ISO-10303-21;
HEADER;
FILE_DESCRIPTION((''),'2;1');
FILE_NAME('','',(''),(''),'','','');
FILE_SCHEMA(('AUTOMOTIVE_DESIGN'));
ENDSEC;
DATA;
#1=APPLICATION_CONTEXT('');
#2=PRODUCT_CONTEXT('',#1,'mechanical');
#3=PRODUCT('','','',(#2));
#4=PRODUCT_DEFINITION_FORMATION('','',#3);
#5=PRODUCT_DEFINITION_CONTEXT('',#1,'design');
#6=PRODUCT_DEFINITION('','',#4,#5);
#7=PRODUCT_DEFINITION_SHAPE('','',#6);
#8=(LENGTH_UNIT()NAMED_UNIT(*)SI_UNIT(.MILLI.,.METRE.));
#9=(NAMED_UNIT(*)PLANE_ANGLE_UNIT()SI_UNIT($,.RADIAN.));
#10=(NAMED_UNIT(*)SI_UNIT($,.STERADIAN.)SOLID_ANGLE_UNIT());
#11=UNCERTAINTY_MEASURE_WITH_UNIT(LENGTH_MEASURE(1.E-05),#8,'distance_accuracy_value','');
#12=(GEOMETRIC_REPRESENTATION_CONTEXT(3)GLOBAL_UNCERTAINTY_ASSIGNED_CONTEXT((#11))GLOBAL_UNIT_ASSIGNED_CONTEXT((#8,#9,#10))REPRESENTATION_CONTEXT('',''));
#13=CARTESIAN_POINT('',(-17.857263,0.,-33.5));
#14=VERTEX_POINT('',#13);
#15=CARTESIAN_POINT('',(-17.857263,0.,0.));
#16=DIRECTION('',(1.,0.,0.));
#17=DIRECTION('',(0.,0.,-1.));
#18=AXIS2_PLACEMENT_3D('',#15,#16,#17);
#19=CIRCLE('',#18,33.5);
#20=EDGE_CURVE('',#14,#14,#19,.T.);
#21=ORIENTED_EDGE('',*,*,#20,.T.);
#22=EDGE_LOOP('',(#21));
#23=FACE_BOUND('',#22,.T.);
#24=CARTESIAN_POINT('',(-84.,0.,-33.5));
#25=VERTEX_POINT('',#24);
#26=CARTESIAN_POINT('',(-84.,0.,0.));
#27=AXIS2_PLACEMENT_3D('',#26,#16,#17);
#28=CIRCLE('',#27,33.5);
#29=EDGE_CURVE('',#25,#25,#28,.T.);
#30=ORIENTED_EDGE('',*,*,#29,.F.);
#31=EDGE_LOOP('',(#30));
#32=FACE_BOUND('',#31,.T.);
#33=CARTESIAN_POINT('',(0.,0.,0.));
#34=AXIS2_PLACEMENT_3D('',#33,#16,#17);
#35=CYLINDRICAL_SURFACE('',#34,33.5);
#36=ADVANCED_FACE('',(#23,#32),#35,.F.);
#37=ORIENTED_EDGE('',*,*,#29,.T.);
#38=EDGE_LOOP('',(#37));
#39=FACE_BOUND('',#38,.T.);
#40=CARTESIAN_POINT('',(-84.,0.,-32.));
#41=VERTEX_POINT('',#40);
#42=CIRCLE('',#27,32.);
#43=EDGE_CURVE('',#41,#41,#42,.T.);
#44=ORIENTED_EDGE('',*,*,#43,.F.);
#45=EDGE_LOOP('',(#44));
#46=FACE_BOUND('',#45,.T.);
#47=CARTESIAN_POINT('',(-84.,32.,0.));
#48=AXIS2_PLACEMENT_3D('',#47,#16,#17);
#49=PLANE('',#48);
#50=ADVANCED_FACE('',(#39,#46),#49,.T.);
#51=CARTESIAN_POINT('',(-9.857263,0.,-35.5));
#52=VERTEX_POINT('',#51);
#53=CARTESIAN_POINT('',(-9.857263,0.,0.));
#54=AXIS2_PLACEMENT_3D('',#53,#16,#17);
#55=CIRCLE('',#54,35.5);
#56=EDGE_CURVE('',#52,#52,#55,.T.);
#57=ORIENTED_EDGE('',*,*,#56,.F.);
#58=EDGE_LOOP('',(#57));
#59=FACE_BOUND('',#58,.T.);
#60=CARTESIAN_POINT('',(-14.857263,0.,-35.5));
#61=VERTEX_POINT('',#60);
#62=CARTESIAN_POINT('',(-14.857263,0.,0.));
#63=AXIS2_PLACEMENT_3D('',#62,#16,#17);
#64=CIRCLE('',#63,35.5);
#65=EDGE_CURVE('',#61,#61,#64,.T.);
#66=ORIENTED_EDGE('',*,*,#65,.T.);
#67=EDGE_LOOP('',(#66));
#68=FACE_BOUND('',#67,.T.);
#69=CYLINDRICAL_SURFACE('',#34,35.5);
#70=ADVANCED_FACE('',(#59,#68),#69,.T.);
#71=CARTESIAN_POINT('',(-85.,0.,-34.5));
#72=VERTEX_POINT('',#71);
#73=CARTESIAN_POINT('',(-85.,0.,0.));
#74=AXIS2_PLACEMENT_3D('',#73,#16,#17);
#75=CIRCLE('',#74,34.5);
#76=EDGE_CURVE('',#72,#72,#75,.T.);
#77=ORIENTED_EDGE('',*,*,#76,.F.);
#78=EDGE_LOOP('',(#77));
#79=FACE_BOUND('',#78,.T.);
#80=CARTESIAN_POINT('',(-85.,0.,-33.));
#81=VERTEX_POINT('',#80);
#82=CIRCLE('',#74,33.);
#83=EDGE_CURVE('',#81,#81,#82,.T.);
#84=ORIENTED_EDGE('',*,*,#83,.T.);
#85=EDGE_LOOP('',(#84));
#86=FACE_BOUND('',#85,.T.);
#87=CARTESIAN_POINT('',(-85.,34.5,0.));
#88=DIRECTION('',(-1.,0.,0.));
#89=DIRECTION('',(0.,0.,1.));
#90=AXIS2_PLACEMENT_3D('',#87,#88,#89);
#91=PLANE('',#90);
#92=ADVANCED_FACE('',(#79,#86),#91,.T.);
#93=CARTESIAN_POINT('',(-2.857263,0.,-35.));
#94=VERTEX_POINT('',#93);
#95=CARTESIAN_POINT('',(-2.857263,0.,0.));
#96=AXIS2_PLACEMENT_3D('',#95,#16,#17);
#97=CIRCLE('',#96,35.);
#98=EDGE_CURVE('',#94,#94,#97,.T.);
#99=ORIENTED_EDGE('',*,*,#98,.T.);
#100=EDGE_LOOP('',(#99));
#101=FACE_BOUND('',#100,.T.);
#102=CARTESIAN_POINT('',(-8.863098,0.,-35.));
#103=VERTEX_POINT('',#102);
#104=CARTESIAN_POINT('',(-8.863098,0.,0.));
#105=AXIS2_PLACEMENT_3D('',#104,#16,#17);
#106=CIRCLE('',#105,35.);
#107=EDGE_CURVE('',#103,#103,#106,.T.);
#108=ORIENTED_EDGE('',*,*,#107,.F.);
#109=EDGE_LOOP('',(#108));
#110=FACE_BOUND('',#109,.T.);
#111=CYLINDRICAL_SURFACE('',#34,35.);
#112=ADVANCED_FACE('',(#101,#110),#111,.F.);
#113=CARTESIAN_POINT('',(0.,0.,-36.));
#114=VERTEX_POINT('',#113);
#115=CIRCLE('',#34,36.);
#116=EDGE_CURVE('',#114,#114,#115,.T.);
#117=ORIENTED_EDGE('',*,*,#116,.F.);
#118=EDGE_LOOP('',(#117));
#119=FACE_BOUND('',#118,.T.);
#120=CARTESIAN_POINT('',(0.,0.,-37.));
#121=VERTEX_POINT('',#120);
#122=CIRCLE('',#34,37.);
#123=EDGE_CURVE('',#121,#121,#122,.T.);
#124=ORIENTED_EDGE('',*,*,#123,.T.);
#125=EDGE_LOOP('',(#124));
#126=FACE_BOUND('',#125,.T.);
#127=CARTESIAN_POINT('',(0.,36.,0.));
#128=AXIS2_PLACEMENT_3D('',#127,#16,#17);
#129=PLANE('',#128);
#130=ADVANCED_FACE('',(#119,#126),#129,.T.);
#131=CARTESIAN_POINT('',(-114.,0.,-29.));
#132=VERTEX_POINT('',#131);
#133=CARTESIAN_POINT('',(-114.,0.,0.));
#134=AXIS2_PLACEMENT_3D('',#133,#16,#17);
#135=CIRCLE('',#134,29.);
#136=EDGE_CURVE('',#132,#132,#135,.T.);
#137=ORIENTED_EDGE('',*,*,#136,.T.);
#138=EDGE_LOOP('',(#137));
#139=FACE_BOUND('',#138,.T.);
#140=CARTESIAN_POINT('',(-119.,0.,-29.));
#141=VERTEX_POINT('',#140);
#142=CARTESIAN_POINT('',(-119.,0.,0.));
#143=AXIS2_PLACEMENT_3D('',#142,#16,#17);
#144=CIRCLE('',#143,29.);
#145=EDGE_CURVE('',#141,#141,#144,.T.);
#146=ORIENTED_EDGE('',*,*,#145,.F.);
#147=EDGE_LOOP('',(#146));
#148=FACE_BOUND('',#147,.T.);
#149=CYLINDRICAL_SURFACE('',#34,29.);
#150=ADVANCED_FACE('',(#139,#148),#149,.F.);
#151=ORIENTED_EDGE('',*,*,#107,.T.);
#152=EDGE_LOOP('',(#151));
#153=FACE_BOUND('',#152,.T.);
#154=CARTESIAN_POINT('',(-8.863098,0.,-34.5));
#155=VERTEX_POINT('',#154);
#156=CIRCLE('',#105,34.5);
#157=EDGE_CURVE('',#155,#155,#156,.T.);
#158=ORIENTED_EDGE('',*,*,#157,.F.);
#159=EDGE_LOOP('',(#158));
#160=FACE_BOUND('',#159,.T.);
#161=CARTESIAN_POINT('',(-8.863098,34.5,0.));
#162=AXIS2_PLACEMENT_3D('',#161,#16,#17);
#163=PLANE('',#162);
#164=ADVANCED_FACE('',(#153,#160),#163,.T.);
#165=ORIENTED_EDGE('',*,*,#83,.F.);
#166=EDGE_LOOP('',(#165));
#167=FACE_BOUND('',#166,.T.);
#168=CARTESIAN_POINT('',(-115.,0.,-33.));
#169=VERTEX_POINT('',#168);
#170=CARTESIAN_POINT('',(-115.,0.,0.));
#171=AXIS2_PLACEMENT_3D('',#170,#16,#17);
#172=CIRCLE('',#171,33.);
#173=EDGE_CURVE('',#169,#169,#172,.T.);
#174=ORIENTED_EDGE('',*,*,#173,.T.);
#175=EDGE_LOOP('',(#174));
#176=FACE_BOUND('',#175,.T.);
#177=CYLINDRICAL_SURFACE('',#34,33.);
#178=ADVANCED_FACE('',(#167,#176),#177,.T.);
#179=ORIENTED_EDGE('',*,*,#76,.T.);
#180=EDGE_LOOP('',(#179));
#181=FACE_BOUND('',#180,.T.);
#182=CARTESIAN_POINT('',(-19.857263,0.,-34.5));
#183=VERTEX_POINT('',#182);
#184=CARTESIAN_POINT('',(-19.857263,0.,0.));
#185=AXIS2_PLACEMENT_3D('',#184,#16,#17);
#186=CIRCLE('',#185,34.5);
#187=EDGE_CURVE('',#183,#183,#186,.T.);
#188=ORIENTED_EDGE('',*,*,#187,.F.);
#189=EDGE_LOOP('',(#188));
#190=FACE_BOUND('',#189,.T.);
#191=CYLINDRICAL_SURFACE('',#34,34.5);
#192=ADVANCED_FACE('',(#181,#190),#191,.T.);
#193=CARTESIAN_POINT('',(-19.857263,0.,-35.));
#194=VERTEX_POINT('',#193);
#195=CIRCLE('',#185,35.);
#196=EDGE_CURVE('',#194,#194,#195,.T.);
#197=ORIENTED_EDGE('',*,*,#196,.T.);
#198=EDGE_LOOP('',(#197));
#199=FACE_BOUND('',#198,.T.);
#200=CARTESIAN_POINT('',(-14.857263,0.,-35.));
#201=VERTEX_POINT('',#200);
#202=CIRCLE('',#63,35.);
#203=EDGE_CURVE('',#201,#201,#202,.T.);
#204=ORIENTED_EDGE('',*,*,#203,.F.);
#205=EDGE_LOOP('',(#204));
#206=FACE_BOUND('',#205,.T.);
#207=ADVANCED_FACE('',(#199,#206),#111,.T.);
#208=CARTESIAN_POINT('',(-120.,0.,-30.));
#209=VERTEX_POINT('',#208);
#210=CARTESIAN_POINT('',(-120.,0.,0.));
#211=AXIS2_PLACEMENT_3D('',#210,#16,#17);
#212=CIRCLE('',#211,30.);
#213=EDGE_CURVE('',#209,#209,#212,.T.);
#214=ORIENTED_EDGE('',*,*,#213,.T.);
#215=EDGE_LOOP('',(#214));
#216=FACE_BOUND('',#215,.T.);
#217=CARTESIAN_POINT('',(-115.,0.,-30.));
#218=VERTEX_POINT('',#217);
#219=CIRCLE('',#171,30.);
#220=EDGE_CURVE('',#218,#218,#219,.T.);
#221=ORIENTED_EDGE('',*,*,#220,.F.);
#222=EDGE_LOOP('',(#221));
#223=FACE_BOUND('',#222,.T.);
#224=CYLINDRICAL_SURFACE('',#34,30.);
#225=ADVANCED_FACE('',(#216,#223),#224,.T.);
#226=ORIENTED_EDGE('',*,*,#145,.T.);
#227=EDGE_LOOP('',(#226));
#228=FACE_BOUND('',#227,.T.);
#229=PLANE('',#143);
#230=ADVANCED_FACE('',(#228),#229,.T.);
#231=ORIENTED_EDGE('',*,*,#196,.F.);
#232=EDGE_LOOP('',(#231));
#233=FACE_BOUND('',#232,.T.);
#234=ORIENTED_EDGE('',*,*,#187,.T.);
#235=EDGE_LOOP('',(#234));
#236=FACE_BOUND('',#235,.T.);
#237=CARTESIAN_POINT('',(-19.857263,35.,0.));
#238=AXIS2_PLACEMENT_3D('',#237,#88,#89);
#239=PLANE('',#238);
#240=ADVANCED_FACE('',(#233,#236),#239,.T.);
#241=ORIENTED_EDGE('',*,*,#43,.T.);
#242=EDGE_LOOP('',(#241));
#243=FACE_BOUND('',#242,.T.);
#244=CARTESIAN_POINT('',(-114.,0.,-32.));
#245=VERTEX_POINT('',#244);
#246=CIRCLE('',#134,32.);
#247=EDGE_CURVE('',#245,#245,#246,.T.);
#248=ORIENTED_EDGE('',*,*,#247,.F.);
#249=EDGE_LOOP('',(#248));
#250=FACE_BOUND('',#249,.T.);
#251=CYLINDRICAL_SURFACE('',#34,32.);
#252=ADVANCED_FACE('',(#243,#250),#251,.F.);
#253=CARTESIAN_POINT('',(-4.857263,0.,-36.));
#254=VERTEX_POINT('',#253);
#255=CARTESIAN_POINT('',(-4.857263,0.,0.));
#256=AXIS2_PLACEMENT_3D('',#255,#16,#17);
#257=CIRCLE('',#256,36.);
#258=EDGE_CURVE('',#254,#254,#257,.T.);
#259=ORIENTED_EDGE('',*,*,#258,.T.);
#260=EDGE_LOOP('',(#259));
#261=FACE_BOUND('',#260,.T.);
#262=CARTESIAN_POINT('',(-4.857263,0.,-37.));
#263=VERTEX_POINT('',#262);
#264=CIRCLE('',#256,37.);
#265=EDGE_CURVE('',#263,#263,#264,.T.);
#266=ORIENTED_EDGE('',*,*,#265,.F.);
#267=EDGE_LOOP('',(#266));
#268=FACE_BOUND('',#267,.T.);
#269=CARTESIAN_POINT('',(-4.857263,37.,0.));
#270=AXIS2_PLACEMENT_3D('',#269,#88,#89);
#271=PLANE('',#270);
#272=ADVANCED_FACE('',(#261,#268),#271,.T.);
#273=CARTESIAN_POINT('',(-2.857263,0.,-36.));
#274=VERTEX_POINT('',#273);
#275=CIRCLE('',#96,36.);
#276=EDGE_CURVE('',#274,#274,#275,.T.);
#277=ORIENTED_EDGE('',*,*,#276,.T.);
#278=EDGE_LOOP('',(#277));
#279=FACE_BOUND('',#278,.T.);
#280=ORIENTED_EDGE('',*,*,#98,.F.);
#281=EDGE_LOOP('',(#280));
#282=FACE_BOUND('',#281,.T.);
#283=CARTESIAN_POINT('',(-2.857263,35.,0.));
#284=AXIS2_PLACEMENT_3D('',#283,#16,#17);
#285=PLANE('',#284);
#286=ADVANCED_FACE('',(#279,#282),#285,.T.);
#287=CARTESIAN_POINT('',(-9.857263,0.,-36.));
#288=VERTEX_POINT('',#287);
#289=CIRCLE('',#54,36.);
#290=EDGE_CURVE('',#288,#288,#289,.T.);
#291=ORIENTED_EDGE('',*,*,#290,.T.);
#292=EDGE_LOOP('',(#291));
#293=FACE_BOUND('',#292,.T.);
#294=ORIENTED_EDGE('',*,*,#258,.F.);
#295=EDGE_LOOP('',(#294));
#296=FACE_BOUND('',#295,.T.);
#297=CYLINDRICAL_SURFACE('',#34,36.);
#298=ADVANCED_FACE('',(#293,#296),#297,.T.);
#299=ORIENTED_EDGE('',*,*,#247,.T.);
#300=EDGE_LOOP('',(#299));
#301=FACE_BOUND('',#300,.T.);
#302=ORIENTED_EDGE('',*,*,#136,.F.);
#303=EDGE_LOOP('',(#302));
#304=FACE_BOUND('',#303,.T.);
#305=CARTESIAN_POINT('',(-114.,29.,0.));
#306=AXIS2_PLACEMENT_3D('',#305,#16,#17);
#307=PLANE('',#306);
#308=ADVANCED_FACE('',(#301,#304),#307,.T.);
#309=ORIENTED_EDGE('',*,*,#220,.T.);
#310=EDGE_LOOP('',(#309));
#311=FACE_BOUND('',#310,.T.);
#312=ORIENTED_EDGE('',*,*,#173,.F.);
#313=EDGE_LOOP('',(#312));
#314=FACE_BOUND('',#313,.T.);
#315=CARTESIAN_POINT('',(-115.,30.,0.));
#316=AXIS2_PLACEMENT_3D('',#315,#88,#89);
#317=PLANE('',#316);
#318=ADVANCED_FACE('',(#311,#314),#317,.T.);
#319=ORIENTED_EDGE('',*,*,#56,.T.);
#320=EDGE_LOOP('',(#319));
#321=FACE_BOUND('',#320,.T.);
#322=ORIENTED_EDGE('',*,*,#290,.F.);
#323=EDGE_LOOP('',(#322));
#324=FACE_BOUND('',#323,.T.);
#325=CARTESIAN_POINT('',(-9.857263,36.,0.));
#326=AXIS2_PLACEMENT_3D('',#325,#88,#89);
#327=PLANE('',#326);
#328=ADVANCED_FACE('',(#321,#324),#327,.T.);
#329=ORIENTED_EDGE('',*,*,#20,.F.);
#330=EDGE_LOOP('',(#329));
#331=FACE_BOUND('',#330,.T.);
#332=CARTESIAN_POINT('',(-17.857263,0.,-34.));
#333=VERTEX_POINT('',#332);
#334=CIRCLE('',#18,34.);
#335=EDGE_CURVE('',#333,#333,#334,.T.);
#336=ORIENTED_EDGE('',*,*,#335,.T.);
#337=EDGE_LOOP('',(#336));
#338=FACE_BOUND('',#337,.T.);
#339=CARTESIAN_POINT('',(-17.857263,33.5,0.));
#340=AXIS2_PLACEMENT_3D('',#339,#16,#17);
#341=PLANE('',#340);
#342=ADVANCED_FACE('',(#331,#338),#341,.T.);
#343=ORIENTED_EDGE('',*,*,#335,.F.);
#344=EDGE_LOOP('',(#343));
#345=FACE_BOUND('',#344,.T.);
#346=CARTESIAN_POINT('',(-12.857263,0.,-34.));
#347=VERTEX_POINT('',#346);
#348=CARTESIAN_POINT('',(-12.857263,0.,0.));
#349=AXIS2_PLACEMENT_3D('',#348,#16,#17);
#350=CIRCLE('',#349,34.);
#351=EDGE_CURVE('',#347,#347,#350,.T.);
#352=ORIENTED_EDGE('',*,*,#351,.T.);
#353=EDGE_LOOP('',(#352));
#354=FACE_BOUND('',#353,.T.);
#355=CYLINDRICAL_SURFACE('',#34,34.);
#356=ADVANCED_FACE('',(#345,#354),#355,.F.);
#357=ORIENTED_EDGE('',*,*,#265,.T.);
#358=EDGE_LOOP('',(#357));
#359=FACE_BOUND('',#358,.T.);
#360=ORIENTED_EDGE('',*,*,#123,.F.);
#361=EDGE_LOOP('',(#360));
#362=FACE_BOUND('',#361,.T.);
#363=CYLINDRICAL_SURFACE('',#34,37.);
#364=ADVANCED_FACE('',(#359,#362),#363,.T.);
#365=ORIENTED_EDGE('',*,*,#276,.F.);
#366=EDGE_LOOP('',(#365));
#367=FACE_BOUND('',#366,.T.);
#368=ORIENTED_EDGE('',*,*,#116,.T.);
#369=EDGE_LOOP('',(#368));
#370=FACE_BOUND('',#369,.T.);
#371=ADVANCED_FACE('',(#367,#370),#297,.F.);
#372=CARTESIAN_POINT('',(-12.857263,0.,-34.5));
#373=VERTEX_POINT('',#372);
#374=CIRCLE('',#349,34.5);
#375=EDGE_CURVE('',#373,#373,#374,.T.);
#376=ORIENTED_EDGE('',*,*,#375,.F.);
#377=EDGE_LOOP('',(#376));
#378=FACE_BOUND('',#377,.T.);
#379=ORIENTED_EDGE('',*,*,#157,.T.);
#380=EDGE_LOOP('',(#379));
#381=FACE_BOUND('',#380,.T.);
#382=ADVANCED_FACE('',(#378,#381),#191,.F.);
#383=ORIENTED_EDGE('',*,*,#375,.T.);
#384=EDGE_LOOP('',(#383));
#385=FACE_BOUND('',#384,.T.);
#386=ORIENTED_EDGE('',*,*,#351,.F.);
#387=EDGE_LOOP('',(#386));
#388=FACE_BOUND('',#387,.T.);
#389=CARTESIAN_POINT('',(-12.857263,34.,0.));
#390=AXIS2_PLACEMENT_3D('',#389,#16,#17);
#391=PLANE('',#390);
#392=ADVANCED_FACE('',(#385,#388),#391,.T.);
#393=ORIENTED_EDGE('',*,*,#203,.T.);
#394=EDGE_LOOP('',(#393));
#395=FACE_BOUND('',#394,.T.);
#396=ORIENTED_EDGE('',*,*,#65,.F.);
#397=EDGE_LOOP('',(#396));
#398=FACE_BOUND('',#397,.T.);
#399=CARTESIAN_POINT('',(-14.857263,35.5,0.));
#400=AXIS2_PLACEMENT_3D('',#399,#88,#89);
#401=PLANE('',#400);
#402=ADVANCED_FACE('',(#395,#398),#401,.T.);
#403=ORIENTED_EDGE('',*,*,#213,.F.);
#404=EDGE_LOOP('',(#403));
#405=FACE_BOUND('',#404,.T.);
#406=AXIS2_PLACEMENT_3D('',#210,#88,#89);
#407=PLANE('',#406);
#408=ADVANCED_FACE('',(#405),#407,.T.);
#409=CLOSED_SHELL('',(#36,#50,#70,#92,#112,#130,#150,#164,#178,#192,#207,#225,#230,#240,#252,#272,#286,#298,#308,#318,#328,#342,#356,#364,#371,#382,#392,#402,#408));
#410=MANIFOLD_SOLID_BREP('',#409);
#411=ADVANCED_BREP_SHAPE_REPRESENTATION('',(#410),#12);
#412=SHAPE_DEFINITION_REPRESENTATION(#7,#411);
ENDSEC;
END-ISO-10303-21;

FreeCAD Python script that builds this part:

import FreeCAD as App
import Part
import Sketcher
Q = App.Units.Quantity

doc = App.newDocument("Part")
body = doc.addObject("PartDesign::Body", "Body")

# Sketch on XY plane
sketch1 = body.newObject("Sketcher::SketchObject", "Sketch")
sketch1.AttachmentSupport = (doc.getObject("XY_Plane"), [""])
sketch1.MapMode = "FlatFace"
sketch1.addGeometry([
    Part.LineSegment(App.Vector(-120, 30, 0), App.Vector(-120, 0, 0)),  # 0
    Part.LineSegment(App.Vector(-120, 0, 0), App.Vector(-119, 0, 0)),  # 1
    Part.LineSegment(App.Vector(-119, 0, 0), App.Vector(-119, 29, 0)),  # 2
    Part.LineSegment(App.Vector(-119, 29, 0), App.Vector(-114, 29, 0)),  # 3
    Part.LineSegment(App.Vector(-114, 29, 0), App.Vector(-114, 32, 0)),  # 4
    Part.LineSegment(App.Vector(-114, 32, 0), App.Vector(-84, 32, 0)),  # 5
    Part.LineSegment(App.Vector(-84, 32, 0), App.Vector(-84, 33.5, 0)),  # 6
    Part.LineSegment(App.Vector(-84, 33.5, 0), App.Vector(-17.857263, 33.5, 0)),  # 7
    Part.LineSegment(App.Vector(-17.857263, 33.5, 0), App.Vector(-17.857263, 34, 0)),  # 8
    Part.LineSegment(App.Vector(-17.857263, 34, 0), App.Vector(-12.857263, 34, 0)),  # 9
    Part.LineSegment(App.Vector(-12.857263, 34, 0), App.Vector(-12.857263, 34.5, 0)),  # 10
    Part.LineSegment(App.Vector(-12.857263, 34.5, 0), App.Vector(-8.863098, 34.5, 0)),  # 11
    Part.LineSegment(App.Vector(-8.863098, 34.5, 0), App.Vector(-8.863098, 35, 0)),  # 12
    Part.LineSegment(App.Vector(-8.863098, 35, 0), App.Vector(-2.857263, 35, 0)),  # 13
    Part.LineSegment(App.Vector(-2.857263, 35, 0), App.Vector(-2.857263, 36, 0)),  # 14
    Part.LineSegment(App.Vector(-2.857263, 36, 0), App.Vector(0, 36, 0)),  # 15
    Part.LineSegment(App.Vector(0, 36, 0), App.Vector(0, 37, 0)),  # 16
    Part.LineSegment(App.Vector(0, 37, 0), App.Vector(-4.857263, 37, 0)),  # 17
    Part.LineSegment(App.Vector(-4.857263, 37, 0), App.Vector(-4.857263, 36, 0)),  # 18
    Part.LineSegment(App.Vector(-4.857263, 36, 0), App.Vector(-9.857263, 36, 0)),  # 19
    Part.LineSegment(App.Vector(-9.857263, 36, 0), App.Vector(-9.857263, 35.5, 0)),  # 20
    Part.LineSegment(App.Vector(-9.857263, 35.5, 0), App.Vector(-14.857263, 35.5, 0)),  # 21
    Part.LineSegment(App.Vector(-14.857263, 35.5, 0), App.Vector(-14.857263, 35, 0)),  # 22
    Part.LineSegment(App.Vector(-14.857263, 35, 0), App.Vector(-19.857263, 35, 0)),  # 23
    Part.LineSegment(App.Vector(-19.857263, 35, 0), App.Vector(-19.857263, 34.5, 0)),  # 24
    Part.LineSegment(App.Vector(-19.857263, 34.5, 0), App.Vector(-85, 34.5, 0)),  # 25
    Part.LineSegment(App.Vector(-85, 34.5, 0), App.Vector(-85, 33, 0)),  # 26
    Part.LineSegment(App.Vector(-85, 33, 0), App.Vector(-115, 33, 0)),  # 27
    Part.LineSegment(App.Vector(-115, 33, 0), App.Vector(-115, 30, 0)),  # 28
    Part.LineSegment(App.Vector(-115, 30, 0), App.Vector(-120, 30, 0)),  # 29
], False)
sketch1.addConstraint([
    Sketcher.Constraint("Coincident", 0, 2, 1, 1),
    Sketcher.Constraint("Coincident", 1, 2, 2, 1),
    Sketcher.Constraint("Coincident", 2, 2, 3, 1),
    Sketcher.Constraint("Coincident", 3, 2, 4, 1),
    Sketcher.Constraint("Coincident", 4, 2, 5, 1),
    Sketcher.Constraint("Coincident", 5, 2, 6, 1),
    Sketcher.Constraint("Coincident", 6, 2, 7, 1),
    Sketcher.Constraint("Coincident", 7, 2, 8, 1),
    Sketcher.Constraint("Coincident", 8, 2, 9, 1),
    Sketcher.Constraint("Coincident", 9, 2, 10, 1),
    Sketcher.Constraint("Coincident", 10, 2, 11, 1),
    Sketcher.Constraint("Coincident", 11, 2, 12, 1),
    Sketcher.Constraint("Coincident", 12, 2, 13, 1),
    Sketcher.Constraint("Coincident", 13, 2, 14, 1),
    Sketcher.Constraint("Coincident", 14, 2, 15, 1),
    Sketcher.Constraint("Coincident", 15, 2, 16, 1),
    Sketcher.Constraint("Coincident", 16, 2, 17, 1),
    Sketcher.Constraint("Coincident", 17, 2, 18, 1),
    Sketcher.Constraint("Coincident", 18, 2, 19, 1),
    Sketcher.Constraint("Coincident", 19, 2, 20, 1),
    Sketcher.Constraint("Coincident", 20, 2, 21, 1),
    Sketcher.Constraint("Coincident", 21, 2, 22, 1),
    Sketcher.Constraint("Coincident", 22, 2, 23, 1),
    Sketcher.Constraint("Coincident", 23, 2, 24, 1),
    Sketcher.Constraint("Coincident", 24, 2, 25, 1),
    Sketcher.Constraint("Coincident", 25, 2, 26, 1),
    Sketcher.Constraint("Coincident", 26, 2, 27, 1),
    Sketcher.Constraint("Coincident", 27, 2, 28, 1),
    Sketcher.Constraint("Coincident", 28, 2, 29, 1),
    Sketcher.Constraint("Coincident", 29, 2, 0, 1),
    Sketcher.Constraint("Vertical", 0),
    Sketcher.Constraint("Horizontal", 1),
    Sketcher.Constraint("Vertical", 2),
    Sketcher.Constraint("Horizontal", 3),
    Sketcher.Constraint("Vertical", 4),
    Sketcher.Constraint("Horizontal", 5),
    Sketcher.Constraint("Vertical", 6),
    Sketcher.Constraint("Horizontal", 7),
    Sketcher.Constraint("Vertical", 8),
    Sketcher.Constraint("Horizontal", 9),
    Sketcher.Constraint("Vertical", 10),
    Sketcher.Constraint("Horizontal", 11),
    Sketcher.Constraint("Vertical", 12),
    Sketcher.Constraint("Horizontal", 13),
    Sketcher.Constraint("Vertical", 14),
    Sketcher.Constraint("Horizontal", 15),
    Sketcher.Constraint("Vertical", 16),
    Sketcher.Constraint("Horizontal", 17),
    Sketcher.Constraint("Vertical", 18),
    Sketcher.Constraint("Horizontal", 19),
    Sketcher.Constraint("Vertical", 20),
    Sketcher.Constraint("Horizontal", 21),
    Sketcher.Constraint("Vertical", 22),
    Sketcher.Constraint("Horizontal", 23),
    Sketcher.Constraint("Vertical", 24),
    Sketcher.Constraint("Horizontal", 25),
    Sketcher.Constraint("Vertical", 26),
    Sketcher.Constraint("Horizontal", 27),
    Sketcher.Constraint("Vertical", 28),
    Sketcher.Constraint("Horizontal", 29),
    Sketcher.Constraint("PointOnObject", 0, 2, -1),
    Sketcher.Constraint("PointOnObject", 15, 2, -2),
    Sketcher.Constraint("Horizontal", 15, 2, 18, 2),
    Sketcher.Constraint("Horizontal", 13, 2, 22, 2),
    Sketcher.Constraint("Horizontal", 11, 2, 24, 2),
    Sketcher.Constraint("Equal", 3, 9),
    Sketcher.Constraint("Equal", 9, 19),
    Sketcher.Constraint("Equal", 19, 21),
    Sketcher.Constraint("Equal", 21, 23),
    Sketcher.Constraint("Equal", 5, 27),
    Sketcher.Constraint("Equal", 23, 29),
    Sketcher.Constraint("Equal", 27, 0),
    Sketcher.Constraint("Equal", 8, 10),
    Sketcher.Constraint("Equal", 10, 12),
    Sketcher.Constraint("Equal", 1, 14),
    Sketcher.Constraint("Equal", 14, 16),
    Sketcher.Constraint("Equal", 12, 20),
    Sketcher.Constraint("Equal", 20, 22),
    Sketcher.Constraint("Equal", 6, 26),
    Sketcher.Constraint("Equal", 4, 28),
    Sketcher.Constraint("DistanceX", 1, 1, 1, 2, Q("1 mm")),
    Sketcher.Constraint("DistanceX", 3, 1, 3, 2, Q("5 mm")),
    Sketcher.Constraint("DistanceX", 5, 1, 5, 2, Q("30 mm")),
    Sketcher.Constraint("DistanceY", 4, 1, 4, 2, Q("3 mm")),
    Sketcher.Constraint("DistanceY", 6, 1, 6, 2, Q("1.5 mm")),
    Sketcher.Constraint("DistanceX", 0, 2, -1, 1, Q("120 mm")),
    Sketcher.Constraint("DistanceX", 10, 2, 13, 2, Q("10 mm")),
    Sketcher.Constraint("DistanceX", 17, 2, 14, 2, Q("2 mm")),
    Sketcher.Constraint("DistanceX", 7, 1, 7, 2, Q("66.142737 mm")),
    Sketcher.Constraint("DistanceX", 11, 1, 11, 2, Q("3.994165 mm")),
])
revolution = body.newObject("PartDesign::Revolution", "Revolution")
revolution.Profile = sketch1
revolution.ReferenceAxis = (sketch1, ["H_Axis"])
revolution.Angle = 360

doc.recompute()
